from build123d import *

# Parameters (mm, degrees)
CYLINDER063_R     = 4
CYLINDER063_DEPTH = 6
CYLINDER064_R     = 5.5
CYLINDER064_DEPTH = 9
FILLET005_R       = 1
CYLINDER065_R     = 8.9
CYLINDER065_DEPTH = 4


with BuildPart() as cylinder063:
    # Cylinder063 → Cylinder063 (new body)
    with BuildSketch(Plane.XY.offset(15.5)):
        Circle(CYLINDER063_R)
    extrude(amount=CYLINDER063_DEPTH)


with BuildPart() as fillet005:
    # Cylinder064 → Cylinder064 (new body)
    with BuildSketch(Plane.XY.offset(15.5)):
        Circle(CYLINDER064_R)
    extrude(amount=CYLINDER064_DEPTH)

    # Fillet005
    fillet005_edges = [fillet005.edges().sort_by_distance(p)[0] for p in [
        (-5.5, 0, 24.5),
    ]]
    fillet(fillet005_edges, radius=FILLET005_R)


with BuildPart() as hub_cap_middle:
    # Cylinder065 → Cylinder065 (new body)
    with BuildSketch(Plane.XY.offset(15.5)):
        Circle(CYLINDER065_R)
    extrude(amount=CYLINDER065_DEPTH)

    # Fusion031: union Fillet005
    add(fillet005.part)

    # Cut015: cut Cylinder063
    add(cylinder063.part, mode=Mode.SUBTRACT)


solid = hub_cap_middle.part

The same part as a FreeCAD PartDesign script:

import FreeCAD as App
import Part
import Sketcher
from FreeCAD import Vector
Q = App.Units.Quantity


def edges_at(feature, points):
    """Names of the edges that pass closest to the given points."""
    edges = feature.Shape.Edges
    near = lambda p: min(range(len(edges)), key=lambda i: edges[i].distToShape(Part.Vertex(*p))[0])
    return sorted({f"Edge{near(p) + 1}" for p in points})

doc = App.newDocument("Part")
body = doc.addObject("PartDesign::Body", "Body")

# Sketch on XY plane
sketch1 = body.newObject("Sketcher::SketchObject", "Sketch")
sketch1.AttachmentSupport = (doc.getObject("XY_Plane"), [""])
sketch1.MapMode = "FlatFace"
sketch1.AttachmentOffset = App.Placement(Vector(0, 0, 15.5), App.Rotation())
sketch1.addGeometry(Part.Circle(Vector(0, 0, 0), Vector(0, 0, 1), 4), False)
sketch1.addConstraint([
    Sketcher.Constraint("Coincident", 0, 3, -1, 1),
    Sketcher.Constraint("Diameter", 0, Q("8 mm")),
])
pad1 = body.newObject("PartDesign::Pad", "Pad")
pad1.Profile = sketch1
pad1.Length = 6
body2 = doc.addObject("PartDesign::Body", "Body001")

# Sketch on XY plane
sketch2 = body2.newObject("Sketcher::SketchObject", "Sketch001")
sketch2.AttachmentSupport = (doc.getObject("XY_Plane001"), [""])
sketch2.MapMode = "FlatFace"
sketch2.AttachmentOffset = App.Placement(Vector(0, 0, 15.5), App.Rotation())
sketch2.addGeometry(Part.Circle(Vector(0, 0, 0), Vector(0, 0, 1), 6), False)
sketch2.addConstraint([
    Sketcher.Constraint("Coincident", 0, 3, -1, 1),
    Sketcher.Constraint("Diameter", 0, Q("11 mm")),
])
pad2 = body2.newObject("PartDesign::Pad", "Pad001")
pad2.Profile = sketch2
pad2.Length = 9
doc.recompute()

fillet = body2.newObject("PartDesign::Fillet", "Fillet")
fillet.Base = (pad2, edges_at(pad2, [(-5.5, 0, 24.5)]))
fillet.Radius = 1
body3 = doc.addObject("PartDesign::Body", "Body002")

# Sketch on XY plane
sketch3 = body3.newObject("Sketcher::SketchObject", "Sketch002")
sketch3.AttachmentSupport = (doc.getObject("XY_Plane002"), [""])
sketch3.MapMode = "FlatFace"
sketch3.AttachmentOffset = App.Placement(Vector(0, 0, 15.5), App.Rotation())
sketch3.addGeometry(Part.Circle(Vector(0, 0, 0), Vector(0, 0, 1), 9), False)
sketch3.addConstraint([
    Sketcher.Constraint("Coincident", 0, 3, -1, 1),
    Sketcher.Constraint("Diameter", 0, Q("17.8 mm")),
])
pad3 = body3.newObject("PartDesign::Pad", "Pad002")
pad3.Profile = sketch3
pad3.Length = 4
doc.recompute()

boolean = body3.newObject("PartDesign::Boolean", "Boolean")
boolean.Type = "Fuse"
boolean.addObjects([body2])
doc.recompute()

boolean2 = body3.newObject("PartDesign::Boolean", "Boolean001")
boolean2.Type = "Cut"
boolean2.addObjects([body])

doc.recompute()
